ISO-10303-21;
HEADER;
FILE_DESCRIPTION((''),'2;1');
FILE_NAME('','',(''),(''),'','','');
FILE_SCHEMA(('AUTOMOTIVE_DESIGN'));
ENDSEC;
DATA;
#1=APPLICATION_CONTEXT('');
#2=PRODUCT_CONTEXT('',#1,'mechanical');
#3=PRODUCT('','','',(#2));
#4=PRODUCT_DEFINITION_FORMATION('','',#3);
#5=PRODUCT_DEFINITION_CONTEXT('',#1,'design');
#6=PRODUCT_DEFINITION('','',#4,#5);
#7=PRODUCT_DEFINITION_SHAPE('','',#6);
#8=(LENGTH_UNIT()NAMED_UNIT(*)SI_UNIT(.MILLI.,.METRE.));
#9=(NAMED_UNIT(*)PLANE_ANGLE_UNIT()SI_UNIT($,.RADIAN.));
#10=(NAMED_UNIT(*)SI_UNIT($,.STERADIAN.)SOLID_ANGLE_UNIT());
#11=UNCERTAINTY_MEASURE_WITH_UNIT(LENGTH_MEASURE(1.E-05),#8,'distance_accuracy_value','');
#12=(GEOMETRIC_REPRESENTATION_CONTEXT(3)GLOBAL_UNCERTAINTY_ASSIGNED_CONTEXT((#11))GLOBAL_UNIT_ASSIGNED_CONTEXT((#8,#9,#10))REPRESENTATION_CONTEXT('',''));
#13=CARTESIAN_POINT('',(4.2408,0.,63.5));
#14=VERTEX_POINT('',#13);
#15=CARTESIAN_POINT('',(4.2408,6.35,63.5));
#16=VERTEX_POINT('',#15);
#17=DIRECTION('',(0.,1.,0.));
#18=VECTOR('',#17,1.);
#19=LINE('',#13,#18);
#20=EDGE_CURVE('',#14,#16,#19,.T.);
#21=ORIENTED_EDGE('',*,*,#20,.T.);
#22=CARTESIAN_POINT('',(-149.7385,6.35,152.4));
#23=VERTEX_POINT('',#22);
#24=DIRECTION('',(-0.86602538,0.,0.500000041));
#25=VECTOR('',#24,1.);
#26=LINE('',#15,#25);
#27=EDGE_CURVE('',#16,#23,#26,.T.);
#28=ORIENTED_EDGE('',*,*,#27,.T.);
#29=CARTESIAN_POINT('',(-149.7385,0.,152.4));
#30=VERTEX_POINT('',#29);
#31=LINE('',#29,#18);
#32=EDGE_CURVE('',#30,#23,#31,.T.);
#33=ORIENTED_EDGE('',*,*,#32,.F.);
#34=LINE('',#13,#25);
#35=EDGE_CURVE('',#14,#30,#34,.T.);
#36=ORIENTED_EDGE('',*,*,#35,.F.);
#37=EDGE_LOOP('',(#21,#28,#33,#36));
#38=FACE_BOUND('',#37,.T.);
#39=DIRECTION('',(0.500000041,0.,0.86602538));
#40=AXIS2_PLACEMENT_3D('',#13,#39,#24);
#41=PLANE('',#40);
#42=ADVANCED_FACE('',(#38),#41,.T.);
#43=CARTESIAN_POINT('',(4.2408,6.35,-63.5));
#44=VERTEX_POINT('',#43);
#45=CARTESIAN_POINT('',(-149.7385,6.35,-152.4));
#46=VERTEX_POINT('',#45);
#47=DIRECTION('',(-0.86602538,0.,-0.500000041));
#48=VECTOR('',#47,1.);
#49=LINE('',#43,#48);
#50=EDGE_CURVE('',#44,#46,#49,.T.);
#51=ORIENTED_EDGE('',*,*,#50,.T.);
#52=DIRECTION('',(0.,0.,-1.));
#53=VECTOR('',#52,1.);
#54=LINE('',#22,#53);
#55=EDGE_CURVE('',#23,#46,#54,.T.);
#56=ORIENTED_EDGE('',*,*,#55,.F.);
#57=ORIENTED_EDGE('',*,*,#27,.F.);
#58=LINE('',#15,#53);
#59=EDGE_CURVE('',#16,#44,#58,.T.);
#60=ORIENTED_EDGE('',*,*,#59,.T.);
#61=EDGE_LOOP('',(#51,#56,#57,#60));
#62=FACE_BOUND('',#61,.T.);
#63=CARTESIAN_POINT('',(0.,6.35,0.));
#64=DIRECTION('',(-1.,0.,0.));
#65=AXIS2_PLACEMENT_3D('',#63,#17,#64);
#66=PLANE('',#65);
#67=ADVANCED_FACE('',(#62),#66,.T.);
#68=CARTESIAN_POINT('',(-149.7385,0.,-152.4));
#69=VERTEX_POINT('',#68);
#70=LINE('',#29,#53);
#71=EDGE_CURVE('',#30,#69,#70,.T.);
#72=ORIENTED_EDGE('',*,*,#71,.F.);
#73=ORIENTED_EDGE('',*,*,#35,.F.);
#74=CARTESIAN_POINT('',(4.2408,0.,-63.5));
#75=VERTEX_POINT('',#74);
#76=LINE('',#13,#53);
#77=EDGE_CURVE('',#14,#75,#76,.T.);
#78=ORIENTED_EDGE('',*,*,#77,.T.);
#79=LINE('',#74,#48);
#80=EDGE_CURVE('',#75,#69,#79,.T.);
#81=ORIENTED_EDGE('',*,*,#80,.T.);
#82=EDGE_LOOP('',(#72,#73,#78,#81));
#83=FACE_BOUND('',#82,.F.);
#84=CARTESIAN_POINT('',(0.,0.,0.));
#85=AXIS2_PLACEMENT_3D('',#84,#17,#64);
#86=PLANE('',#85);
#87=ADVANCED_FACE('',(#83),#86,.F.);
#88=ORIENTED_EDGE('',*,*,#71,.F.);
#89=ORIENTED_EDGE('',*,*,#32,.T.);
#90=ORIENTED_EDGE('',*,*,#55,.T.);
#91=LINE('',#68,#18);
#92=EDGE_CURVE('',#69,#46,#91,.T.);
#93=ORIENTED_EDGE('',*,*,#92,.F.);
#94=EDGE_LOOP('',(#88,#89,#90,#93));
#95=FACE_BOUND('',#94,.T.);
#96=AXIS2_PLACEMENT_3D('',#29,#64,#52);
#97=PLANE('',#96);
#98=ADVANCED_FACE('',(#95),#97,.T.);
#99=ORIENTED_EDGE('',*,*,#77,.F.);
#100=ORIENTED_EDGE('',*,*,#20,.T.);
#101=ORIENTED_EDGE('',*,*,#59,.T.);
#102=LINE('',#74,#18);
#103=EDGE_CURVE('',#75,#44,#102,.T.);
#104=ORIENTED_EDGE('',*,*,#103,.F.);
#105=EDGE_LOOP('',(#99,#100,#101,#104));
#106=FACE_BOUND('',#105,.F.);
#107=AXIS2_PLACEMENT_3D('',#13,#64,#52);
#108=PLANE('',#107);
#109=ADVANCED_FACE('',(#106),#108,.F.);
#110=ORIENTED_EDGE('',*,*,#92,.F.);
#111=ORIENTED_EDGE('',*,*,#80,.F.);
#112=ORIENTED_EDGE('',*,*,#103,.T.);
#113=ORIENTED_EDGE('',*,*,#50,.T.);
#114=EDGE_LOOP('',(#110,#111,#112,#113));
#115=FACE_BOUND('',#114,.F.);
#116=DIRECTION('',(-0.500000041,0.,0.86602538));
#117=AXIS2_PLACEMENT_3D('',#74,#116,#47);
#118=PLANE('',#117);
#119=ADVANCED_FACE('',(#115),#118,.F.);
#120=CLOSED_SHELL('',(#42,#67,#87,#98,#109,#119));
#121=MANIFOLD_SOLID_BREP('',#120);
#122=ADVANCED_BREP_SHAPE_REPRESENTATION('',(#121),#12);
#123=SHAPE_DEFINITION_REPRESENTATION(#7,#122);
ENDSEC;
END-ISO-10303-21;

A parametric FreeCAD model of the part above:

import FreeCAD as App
import Part
import Sketcher
from FreeCAD import Vector
Q = App.Units.Quantity


def add_polygon(sketch, points):
    """Adds a closed chain of lines whose ends are joined by coincident constraints."""
    first, n = sketch.GeometryCount, len(points)
    for a, b in zip(points, points[1:] + points[:1]):
        sketch.addGeometry(Part.LineSegment(App.Vector(*a, 0), App.Vector(*b, 0)), False)
    for i in range(n):
        sketch.addConstraint(Sketcher.Constraint("Coincident", first + i, 2, first + (i + 1) % n, 1))

doc = App.newDocument("Part")
body = doc.addObject("PartDesign::Body", "Body")

# Sketch on XZ plane
sketch1 = body.newObject("Sketcher::SketchObject", "Sketch")
sketch1.AttachmentSupport = (doc.getObject("XZ_Plane"), [""])
sketch1.MapMode = "FlatFace"
add_polygon(sketch1, [(-150, 152), (4, 64), (4, -64), (-150, -152)])  # lines 0-3
sketch1.addConstraint([
    Sketcher.Constraint("Vertical", 1),
    Sketcher.Constraint("Vertical", 3),
    Sketcher.Constraint("Equal", 0, 2),
    Sketcher.Constraint("DistanceY", 1, 2, 1, 1, Q("5 in")),
    Sketcher.Constraint("Distance", 0, Q("7 in")),
    Sketcher.Constraint("Angle", 0, Q("-30 deg")),
    Sketcher.Constraint("DistanceY", 2, 2, -1, 1, Q("6 in")),
    Sketcher.Constraint("DistanceX", -1, 1, 0, 2, 4.2408),
])
pad1 = body.newObject("PartDesign::Pad", "Pad")
pad1.Profile = sketch1
pad1.Length = Q("0.25 in")
pad1.Reversed = True

doc.recompute()
